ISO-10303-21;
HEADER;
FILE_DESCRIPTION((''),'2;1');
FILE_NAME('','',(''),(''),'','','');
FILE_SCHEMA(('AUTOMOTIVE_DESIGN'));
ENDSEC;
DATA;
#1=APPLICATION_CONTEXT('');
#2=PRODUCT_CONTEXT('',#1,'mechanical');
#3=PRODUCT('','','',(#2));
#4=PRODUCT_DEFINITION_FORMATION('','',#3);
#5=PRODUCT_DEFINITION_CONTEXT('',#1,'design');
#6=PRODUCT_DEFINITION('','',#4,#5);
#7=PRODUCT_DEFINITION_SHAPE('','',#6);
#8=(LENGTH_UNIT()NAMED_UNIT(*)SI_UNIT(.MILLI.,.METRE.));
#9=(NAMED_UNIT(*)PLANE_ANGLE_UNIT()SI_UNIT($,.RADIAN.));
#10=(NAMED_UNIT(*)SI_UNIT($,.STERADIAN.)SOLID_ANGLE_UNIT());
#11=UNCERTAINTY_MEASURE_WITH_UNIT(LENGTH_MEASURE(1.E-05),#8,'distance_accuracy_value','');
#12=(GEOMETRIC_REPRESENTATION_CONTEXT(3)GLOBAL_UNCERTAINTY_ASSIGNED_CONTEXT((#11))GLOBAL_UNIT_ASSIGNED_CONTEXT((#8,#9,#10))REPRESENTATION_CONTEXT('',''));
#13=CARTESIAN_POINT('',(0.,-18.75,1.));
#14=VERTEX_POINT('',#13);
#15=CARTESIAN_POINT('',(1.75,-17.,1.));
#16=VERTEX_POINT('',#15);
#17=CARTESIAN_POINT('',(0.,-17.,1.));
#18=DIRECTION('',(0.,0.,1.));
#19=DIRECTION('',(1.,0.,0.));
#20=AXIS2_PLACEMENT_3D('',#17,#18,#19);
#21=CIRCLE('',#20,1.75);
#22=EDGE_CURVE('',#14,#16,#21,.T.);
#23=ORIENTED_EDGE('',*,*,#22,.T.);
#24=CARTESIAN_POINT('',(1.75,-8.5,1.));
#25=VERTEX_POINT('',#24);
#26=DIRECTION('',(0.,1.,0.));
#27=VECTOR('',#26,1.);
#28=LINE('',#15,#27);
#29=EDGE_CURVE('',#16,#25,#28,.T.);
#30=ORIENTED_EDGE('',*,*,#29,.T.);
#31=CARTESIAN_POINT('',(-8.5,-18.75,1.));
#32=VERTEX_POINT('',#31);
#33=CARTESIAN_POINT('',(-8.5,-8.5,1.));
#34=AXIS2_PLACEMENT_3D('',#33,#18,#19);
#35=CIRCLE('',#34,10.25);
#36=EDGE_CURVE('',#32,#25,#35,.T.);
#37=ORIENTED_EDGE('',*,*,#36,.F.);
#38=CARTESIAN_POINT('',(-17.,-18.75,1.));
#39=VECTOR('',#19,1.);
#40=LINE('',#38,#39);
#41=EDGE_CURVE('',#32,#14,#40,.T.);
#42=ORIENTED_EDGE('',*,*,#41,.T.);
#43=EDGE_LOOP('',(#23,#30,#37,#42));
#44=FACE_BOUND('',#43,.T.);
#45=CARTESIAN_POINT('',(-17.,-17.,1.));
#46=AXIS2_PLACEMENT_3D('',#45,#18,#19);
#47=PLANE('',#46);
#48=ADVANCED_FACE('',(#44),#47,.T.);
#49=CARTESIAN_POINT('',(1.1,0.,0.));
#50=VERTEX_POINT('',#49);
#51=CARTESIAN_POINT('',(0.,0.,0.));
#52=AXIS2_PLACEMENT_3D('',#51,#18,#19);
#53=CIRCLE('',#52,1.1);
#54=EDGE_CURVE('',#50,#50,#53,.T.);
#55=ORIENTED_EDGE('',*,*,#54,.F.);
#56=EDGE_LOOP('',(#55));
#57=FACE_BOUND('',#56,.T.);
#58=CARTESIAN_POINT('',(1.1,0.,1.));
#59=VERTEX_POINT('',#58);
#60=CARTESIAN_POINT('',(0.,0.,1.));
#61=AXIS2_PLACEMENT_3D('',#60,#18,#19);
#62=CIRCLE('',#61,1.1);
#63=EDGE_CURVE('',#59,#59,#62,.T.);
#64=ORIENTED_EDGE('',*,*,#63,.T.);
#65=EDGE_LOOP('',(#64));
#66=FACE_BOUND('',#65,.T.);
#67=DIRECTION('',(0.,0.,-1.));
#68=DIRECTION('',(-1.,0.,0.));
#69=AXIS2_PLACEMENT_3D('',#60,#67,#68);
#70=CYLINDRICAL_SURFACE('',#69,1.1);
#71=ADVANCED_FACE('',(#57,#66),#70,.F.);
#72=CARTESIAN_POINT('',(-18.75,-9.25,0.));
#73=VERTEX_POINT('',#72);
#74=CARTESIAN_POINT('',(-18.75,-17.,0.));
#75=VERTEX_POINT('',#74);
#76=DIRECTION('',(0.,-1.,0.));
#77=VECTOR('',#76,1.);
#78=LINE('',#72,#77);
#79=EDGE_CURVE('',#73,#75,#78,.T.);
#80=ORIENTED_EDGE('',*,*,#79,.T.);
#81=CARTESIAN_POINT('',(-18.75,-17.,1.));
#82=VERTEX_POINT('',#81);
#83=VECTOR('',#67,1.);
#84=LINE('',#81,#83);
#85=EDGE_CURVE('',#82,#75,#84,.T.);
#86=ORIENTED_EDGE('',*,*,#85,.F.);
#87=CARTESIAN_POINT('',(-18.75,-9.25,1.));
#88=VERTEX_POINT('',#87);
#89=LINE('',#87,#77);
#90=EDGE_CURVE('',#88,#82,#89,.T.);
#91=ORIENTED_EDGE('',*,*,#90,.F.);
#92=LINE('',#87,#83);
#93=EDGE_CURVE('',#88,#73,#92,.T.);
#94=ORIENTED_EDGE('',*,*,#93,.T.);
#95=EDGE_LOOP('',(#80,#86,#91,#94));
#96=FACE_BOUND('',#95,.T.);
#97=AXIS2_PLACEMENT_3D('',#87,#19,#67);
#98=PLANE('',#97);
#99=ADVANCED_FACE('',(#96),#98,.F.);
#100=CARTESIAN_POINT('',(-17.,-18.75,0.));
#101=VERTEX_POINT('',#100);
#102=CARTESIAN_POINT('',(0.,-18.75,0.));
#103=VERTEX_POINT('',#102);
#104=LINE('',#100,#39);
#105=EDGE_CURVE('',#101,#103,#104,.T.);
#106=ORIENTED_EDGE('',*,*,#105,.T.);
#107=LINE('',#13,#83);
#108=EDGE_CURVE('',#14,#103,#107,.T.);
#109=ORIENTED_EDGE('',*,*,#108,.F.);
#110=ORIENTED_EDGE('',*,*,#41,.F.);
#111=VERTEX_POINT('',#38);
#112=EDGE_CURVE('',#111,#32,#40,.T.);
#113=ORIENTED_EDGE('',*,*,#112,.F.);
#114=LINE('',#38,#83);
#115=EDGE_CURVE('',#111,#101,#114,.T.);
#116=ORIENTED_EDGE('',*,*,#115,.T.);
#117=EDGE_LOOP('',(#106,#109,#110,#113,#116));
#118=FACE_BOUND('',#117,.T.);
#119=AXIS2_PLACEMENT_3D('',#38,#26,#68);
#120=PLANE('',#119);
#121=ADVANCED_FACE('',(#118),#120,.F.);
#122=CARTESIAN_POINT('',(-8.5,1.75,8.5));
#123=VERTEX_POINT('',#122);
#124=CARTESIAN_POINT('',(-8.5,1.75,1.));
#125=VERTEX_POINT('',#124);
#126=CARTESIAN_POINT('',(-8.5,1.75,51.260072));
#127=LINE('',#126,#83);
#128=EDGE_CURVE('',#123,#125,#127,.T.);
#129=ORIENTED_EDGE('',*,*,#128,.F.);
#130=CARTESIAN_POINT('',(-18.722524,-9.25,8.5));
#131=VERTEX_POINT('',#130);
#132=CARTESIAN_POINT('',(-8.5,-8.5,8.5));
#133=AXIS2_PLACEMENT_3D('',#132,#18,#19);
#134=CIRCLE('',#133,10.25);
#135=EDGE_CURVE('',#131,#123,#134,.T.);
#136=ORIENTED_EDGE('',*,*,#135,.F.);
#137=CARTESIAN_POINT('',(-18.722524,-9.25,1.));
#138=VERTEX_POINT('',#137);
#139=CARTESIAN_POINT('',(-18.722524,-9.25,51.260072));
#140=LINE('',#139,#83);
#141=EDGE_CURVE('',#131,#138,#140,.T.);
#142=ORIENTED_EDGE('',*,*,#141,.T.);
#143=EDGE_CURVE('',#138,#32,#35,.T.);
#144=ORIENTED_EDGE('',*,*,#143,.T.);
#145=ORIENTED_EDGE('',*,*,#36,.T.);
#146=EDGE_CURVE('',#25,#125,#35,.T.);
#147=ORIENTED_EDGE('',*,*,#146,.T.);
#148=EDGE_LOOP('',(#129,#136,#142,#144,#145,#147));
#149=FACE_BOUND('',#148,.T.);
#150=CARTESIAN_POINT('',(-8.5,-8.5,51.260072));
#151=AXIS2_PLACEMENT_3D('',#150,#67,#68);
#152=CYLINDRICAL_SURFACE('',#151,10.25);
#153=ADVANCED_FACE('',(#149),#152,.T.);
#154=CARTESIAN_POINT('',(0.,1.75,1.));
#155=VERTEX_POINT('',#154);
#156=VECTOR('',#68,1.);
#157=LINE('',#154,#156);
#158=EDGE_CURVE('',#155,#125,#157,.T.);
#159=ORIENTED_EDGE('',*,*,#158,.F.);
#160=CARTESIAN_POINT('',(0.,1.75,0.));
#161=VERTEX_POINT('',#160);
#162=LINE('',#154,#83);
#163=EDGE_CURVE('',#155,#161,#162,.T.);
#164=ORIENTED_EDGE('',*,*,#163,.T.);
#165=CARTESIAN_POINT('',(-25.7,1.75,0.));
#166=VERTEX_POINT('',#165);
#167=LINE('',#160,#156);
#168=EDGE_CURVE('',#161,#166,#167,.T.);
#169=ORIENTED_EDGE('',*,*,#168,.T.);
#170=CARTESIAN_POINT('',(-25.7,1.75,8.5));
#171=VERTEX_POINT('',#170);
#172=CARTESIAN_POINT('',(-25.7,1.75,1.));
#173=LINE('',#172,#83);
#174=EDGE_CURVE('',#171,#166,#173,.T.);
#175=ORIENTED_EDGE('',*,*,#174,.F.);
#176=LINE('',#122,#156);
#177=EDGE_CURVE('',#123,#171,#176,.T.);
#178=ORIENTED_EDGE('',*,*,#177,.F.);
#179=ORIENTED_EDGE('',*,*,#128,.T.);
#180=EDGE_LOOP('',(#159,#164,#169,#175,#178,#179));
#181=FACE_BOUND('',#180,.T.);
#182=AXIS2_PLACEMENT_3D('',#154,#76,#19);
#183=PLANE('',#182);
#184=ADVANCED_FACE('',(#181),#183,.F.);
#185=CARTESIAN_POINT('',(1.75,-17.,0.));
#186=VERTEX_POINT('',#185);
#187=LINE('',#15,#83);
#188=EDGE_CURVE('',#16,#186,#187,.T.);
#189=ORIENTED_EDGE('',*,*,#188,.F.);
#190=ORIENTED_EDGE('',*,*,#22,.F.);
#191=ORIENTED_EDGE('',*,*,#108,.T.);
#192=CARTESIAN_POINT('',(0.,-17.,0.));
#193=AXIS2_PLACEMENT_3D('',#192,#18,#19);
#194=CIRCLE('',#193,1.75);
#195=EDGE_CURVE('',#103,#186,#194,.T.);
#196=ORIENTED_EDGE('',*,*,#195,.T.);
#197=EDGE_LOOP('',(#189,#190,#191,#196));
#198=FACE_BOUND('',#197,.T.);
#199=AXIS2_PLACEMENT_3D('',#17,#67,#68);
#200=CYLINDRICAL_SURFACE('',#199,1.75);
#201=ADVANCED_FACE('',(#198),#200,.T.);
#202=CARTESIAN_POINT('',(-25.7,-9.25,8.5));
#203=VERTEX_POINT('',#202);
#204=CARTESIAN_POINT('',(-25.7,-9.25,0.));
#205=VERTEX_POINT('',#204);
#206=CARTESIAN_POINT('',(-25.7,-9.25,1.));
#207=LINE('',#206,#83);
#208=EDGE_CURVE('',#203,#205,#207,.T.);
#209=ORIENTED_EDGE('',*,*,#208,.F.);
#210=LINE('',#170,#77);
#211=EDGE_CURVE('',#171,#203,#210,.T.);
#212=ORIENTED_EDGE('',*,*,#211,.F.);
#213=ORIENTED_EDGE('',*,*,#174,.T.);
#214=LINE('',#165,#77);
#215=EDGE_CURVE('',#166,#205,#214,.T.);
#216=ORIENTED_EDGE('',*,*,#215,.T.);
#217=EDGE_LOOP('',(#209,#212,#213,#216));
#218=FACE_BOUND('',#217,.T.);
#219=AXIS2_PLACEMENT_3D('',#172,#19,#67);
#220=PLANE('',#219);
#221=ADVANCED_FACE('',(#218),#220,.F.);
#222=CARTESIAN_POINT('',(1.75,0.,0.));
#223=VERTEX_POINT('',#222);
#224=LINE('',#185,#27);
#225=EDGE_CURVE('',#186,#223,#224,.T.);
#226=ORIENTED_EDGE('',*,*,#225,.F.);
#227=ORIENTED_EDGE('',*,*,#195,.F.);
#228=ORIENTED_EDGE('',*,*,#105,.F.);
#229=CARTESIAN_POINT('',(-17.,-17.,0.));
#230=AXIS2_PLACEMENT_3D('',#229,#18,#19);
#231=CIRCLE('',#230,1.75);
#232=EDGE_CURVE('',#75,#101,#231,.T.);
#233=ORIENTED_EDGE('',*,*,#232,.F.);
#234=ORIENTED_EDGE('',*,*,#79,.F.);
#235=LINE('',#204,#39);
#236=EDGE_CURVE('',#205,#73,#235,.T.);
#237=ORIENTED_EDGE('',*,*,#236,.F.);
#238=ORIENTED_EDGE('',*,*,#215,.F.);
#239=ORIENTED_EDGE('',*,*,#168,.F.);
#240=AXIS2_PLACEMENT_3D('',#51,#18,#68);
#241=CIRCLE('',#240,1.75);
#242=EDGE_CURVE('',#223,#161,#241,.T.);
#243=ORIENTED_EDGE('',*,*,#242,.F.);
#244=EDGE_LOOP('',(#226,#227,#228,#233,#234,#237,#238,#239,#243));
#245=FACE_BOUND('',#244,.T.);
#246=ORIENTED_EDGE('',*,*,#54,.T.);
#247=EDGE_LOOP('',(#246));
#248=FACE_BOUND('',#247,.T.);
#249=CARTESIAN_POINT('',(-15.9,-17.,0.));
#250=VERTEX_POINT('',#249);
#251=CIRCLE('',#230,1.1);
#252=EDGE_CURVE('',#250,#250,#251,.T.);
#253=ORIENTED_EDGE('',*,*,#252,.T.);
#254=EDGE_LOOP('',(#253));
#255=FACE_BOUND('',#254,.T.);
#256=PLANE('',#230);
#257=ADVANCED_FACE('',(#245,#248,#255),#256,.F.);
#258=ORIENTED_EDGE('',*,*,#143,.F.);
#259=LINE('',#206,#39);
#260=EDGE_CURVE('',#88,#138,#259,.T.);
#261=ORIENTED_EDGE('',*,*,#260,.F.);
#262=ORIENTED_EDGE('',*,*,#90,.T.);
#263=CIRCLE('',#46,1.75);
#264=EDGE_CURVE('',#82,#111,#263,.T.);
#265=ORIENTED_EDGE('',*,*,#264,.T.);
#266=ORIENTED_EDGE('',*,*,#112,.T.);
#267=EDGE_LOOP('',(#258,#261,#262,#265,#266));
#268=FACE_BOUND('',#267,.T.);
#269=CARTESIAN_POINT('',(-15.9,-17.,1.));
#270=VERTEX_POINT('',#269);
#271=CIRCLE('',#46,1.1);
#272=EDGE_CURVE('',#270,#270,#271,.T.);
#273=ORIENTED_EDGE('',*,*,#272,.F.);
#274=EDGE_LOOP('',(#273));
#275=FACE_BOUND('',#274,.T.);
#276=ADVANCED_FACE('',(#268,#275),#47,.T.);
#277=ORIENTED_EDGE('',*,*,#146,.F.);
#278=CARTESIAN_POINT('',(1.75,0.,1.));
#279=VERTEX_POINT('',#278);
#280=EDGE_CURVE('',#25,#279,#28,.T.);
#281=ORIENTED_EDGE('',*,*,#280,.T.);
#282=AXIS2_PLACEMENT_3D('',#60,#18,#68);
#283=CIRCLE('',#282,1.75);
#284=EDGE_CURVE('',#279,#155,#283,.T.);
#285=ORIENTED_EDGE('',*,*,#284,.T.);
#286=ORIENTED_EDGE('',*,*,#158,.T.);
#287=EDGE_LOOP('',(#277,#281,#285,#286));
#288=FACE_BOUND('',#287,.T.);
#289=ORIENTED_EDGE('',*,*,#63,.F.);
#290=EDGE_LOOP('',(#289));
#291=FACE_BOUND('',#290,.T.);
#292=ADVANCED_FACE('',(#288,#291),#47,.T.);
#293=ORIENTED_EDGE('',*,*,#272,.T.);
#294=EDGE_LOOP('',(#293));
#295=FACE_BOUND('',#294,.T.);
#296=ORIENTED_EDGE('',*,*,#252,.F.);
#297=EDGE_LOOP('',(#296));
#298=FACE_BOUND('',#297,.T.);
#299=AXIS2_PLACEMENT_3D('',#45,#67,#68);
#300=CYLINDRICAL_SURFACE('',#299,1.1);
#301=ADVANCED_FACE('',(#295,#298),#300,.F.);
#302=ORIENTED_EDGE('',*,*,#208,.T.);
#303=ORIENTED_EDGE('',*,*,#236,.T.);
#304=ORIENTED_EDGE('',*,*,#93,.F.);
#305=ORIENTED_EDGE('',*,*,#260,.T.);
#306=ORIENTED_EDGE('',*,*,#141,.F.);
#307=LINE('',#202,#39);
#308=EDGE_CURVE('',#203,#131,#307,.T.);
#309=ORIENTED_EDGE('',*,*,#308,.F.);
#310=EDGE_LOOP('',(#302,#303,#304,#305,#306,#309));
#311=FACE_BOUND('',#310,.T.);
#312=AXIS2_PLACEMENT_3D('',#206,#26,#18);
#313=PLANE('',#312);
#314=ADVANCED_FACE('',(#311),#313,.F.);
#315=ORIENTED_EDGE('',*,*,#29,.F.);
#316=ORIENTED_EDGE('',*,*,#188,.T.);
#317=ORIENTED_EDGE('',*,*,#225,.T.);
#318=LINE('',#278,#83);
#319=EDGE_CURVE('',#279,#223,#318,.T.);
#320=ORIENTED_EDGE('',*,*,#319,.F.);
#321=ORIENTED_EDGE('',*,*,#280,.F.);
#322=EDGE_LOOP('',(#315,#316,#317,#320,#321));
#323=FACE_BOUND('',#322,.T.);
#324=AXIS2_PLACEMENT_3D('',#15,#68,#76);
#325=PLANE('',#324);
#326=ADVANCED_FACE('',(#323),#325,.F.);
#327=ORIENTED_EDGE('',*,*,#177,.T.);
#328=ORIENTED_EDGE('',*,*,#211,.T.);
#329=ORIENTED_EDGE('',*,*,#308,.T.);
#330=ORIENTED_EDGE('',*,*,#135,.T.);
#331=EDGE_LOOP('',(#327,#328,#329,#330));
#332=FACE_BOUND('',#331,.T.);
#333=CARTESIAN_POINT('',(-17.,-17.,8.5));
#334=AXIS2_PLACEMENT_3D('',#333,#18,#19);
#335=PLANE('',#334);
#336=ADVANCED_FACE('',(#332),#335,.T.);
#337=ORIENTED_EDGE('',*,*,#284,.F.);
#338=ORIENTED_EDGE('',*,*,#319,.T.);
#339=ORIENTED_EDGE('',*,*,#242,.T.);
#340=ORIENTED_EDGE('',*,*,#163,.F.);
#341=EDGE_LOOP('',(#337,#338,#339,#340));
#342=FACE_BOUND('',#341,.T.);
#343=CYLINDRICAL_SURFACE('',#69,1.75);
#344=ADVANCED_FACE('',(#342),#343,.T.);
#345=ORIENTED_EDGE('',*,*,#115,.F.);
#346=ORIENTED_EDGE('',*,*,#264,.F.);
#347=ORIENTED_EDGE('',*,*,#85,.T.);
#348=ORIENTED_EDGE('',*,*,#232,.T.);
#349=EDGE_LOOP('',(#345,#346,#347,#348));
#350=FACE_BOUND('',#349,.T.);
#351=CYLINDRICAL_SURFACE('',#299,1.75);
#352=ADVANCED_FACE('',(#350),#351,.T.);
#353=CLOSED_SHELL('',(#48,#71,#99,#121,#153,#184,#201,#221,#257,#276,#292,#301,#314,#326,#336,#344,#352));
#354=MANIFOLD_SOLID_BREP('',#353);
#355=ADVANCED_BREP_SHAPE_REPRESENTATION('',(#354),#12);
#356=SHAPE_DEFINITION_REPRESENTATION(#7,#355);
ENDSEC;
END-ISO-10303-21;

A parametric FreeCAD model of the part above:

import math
import FreeCAD as App
import Part
import Sketcher
from FreeCAD import Vector
Q = App.Units.Quantity

doc = App.newDocument("Part")
body = doc.addObject("PartDesign::Body", "Body")

# Sketch on XY plane
sketch1 = body.newObject("Sketcher::SketchObject", "Sketch")
sketch1.AttachmentSupport = (doc.getObject("XY_Plane"), [""])
sketch1.MapMode = "FlatFace"
sketch1.addGeometry([
    Part.LineSegment(Vector(0, 1.8, 0), Vector(-25.7, 1.8, 0)),  # 0
    Part.LineSegment(Vector(-25.7, 1.8, 0), Vector(-25.7, -9.2, 0)),  # 1
    Part.LineSegment(Vector(-25.7, -9.2, 0), Vector(-18.8, -9.2, 0)),  # 2
    Part.LineSegment(Vector(-18.8, -9.2, 0), Vector(-18.8, -17, 0)),  # 3
    Part.ArcOfCircle(Part.Circle(Vector(-17, -17, 0), Vector(0, 0, 1), 1.8), math.radians(180), math.radians(270)),  # 4
    Part.LineSegment(Vector(-17, -18.8, 0), Vector(0, -18.8, 0)),  # 5
    Part.ArcOfCircle(Part.Circle(Vector(0, -17, 0), Vector(0, 0, 1), 1.8), math.radians(-90), math.radians(0)),  # 6
    Part.LineSegment(Vector(1.8, -17, 0), Vector(1.8, 0, 0)),  # 7
    Part.ArcOfCircle(Part.Circle(Vector(0, 0, 0), Vector(0, 0, 1), 1.8), math.radians(0), math.radians(90)),  # 8
    Part.Circle(Vector(-17, -17, 0), Vector(0, 0, 1), 1.1),  # 9
    Part.Circle(Vector(0, 0, 0), Vector(0, 0, 1), 1.1),  # 10
], False)
sketch1.addConstraint([
    Sketcher.Constraint("Coincident", 0, 2, 1, 1),
    Sketcher.Constraint("Coincident", 1, 2, 2, 1),
    Sketcher.Constraint("Coincident", 2, 2, 3, 1),
    Sketcher.Constraint("Tangent", 3, 2, 4, 1),
    Sketcher.Constraint("Tangent", 4, 2, 5, 1),
    Sketcher.Constraint("Tangent", 5, 2, 6, 1),
    Sketcher.Constraint("Tangent", 6, 2, 7, 1),
    Sketcher.Constraint("Tangent", 7, 2, 8, 1),
    Sketcher.Constraint("Tangent", 8, 2, 0, 1),
    Sketcher.Constraint("Horizontal", 0),
    Sketcher.Constraint("Vertical", 1),
    Sketcher.Constraint("Horizontal", 2),
    Sketcher.Constraint("Vertical", 3),
    Sketcher.Constraint("Horizontal", 5),
    Sketcher.Constraint("Vertical", 7),
    Sketcher.Constraint("Coincident", 8, 3, -1, 1),
    Sketcher.Constraint("Coincident", 10, 3, -1, 1),
    Sketcher.Constraint("Coincident", 9, 3, 4, 3),
    Sketcher.Constraint("Equal", 4, 6),
    Sketcher.Constraint("Equal", 6, 8),
    Sketcher.Constraint("Equal", 9, 10),
    Sketcher.Constraint("Equal", 5, 7),
    Sketcher.Constraint("Diameter", 9, Q("2.2 mm")),
    Sketcher.Constraint("DistanceX", 5, 1, 5, 2, Q("17 mm")),
    Sketcher.Constraint("DistanceY", 1, 2, 1, 1, Q("11 mm")),
    Sketcher.Constraint("Radius", 4, Q("1.75 mm")),
    Sketcher.Constraint("DistanceX", 0, 2, 0, 1, Q("25.7 mm")),
])
pad1 = body.newObject("PartDesign::Pad", "Pad")
pad1.Profile = sketch1
pad1.Length = 1

# Sketch on XY plane
sketch2 = body.newObject("Sketcher::SketchObject", "Sketch001")
sketch2.AttachmentSupport = (doc.getObject("XY_Plane"), [""])
sketch2.MapMode = "FlatFace"
sketch2.AttachmentOffset = App.Placement(Vector(0, 0, 1), App.Rotation())
sketch2.addGeometry([
    Part.LineSegment(Vector(-26, -9, 0), Vector(-19, -9, 0)),
    Part.ArcOfCircle(Part.Circle(Vector(-8, -8, 0), Vector(0, 0, 1), 10), math.radians(-176), math.radians(90)),
    Part.LineSegment(Vector(-8, 2, 0), Vector(-26, 2, 0)),
    Part.LineSegment(Vector(-26, 2, 0), Vector(-26, -9, 0)),
], False)
sketch2.addConstraint([
    Sketcher.Constraint("Coincident", 0, 2, 1, 1),
    Sketcher.Constraint("Tangent", 1, 2, 2, 1),
    Sketcher.Constraint("Coincident", 2, 2, 3, 1),
    Sketcher.Constraint("Coincident", 3, 2, 0, 1),
    Sketcher.Constraint("Horizontal", 0),
    Sketcher.Constraint("Horizontal", 2),
    Sketcher.Constraint("Vertical", 3),
    Sketcher.Constraint("DistanceY", 3, 2, 3, 1, Q("11 mm")),
    Sketcher.Constraint("Radius", 1, Q("10.25 mm")),
    Sketcher.Constraint("DistanceX", 2, 2, 2, 1, Q("17.2 mm")),
    Sketcher.Constraint("DistanceX", 1, 3, -1, 1, Q("8.5 mm")),
    Sketcher.Constraint("DistanceY", 1, 3, -1, 1, Q("8.5 mm")),
])
pad2 = body.newObject("PartDesign::Pad", "Pad001")
pad2.Profile = sketch2
pad2.Length = 7.5

doc.recompute()
